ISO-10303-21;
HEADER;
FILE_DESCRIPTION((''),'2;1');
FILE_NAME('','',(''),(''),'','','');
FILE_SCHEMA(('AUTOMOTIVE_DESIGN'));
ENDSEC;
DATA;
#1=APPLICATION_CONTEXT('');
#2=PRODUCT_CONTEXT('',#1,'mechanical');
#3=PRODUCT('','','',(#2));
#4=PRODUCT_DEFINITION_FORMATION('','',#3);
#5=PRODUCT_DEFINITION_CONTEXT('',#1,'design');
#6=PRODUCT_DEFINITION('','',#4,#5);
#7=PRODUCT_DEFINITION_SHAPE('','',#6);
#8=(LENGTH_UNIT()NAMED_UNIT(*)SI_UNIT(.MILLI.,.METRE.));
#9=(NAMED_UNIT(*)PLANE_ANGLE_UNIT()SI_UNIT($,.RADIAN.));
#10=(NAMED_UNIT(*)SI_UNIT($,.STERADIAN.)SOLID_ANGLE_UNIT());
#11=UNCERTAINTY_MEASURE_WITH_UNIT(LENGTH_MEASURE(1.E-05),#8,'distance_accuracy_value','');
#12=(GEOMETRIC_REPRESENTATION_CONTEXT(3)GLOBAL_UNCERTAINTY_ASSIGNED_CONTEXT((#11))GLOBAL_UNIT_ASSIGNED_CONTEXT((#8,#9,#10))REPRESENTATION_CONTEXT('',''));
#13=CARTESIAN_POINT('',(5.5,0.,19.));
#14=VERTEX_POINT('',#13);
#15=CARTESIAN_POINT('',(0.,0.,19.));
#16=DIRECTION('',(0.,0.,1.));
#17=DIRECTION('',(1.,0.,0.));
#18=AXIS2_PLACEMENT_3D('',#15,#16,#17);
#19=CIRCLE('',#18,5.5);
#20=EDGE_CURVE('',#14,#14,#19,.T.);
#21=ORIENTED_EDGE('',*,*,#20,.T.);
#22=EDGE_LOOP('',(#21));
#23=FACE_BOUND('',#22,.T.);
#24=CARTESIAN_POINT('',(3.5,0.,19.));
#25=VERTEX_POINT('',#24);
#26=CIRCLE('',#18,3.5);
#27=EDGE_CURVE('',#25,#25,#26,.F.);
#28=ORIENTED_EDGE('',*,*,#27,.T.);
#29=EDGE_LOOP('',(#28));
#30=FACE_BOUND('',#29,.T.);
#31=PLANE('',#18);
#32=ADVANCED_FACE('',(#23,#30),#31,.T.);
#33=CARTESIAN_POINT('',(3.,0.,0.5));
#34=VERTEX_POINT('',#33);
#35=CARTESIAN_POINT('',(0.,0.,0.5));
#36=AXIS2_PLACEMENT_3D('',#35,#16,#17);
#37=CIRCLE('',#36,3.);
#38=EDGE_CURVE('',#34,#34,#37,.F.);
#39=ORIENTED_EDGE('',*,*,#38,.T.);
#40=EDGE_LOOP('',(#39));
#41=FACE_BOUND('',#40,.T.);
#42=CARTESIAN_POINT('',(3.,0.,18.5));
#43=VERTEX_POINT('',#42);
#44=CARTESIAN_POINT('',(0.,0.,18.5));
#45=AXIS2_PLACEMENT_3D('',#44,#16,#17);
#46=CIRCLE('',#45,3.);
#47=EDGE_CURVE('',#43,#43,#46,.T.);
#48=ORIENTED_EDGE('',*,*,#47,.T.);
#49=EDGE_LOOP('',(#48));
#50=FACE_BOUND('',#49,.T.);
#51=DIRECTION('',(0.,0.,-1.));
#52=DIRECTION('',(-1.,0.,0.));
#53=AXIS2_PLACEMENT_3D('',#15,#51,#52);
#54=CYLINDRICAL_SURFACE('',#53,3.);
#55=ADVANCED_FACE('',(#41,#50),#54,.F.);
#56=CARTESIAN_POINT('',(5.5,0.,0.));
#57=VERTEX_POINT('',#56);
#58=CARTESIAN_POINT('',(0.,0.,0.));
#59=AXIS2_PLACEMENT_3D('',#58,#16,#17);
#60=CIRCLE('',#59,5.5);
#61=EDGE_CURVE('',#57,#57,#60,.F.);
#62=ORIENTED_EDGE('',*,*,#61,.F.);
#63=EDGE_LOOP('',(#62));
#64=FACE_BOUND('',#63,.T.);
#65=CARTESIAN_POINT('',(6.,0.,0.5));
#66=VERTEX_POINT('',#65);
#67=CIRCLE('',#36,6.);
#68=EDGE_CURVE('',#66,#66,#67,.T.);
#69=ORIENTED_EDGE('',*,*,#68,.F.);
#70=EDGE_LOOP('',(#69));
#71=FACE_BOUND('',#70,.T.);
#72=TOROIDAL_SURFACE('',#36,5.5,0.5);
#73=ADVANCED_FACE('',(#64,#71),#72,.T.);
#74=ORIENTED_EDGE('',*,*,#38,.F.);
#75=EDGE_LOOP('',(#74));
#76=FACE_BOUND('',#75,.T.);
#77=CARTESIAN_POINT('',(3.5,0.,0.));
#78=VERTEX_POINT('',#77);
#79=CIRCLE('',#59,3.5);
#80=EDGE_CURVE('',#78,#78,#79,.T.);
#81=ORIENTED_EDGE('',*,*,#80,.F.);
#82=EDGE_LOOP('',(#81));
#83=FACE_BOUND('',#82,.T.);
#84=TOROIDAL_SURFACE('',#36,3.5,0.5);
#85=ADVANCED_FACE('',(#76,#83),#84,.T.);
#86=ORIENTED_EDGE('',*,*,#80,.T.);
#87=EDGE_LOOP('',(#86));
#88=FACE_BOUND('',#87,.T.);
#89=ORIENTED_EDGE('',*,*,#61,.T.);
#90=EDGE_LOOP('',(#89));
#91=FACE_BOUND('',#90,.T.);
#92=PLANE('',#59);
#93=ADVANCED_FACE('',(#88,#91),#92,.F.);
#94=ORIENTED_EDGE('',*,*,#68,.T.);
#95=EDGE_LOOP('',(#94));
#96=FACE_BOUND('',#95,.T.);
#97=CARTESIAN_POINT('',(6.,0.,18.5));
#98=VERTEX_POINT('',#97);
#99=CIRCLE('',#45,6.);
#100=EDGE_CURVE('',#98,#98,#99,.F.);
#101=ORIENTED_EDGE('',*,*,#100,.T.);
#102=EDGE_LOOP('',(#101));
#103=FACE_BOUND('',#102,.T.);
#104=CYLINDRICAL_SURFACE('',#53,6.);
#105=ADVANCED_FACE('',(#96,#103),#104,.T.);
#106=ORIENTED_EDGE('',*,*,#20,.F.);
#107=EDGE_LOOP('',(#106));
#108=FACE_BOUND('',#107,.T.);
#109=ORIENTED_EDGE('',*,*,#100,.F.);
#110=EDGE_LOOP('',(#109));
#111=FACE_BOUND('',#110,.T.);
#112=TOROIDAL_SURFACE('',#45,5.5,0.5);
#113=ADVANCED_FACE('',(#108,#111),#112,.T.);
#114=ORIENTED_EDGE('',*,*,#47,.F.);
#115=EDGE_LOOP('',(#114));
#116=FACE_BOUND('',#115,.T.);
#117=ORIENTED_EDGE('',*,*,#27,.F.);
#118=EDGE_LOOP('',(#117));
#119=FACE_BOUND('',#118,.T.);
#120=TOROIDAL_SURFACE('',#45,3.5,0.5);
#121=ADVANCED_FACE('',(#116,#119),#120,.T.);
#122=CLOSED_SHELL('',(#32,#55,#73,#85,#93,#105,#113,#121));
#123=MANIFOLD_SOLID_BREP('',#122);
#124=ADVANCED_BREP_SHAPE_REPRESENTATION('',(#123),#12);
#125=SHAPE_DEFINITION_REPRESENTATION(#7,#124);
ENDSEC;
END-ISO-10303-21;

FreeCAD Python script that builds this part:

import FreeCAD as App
import Part
import Sketcher
from FreeCAD import Vector
Q = App.Units.Quantity


def edges_at(feature, points):
    """Names of the edges that pass closest to the given points."""
    edges = feature.Shape.Edges
    near = lambda p: min(range(len(edges)), key=lambda i: edges[i].distToShape(Part.Vertex(*p))[0])
    return sorted({f"Edge{near(p) + 1}" for p in points})

doc = App.newDocument("Part")
body = doc.addObject("PartDesign::Body", "Body")

sketch1 = body.newObject("Sketcher::SketchObject", "Sketch")
sketch1.AttachmentSupport = (doc.getObject("XY_Plane"), [""])
sketch1.MapMode = "FlatFace"
sketch1.addGeometry([
    Part.Circle(Vector(0, 0, 0), Vector(0, 0, 1), 6),
    Part.Circle(Vector(0, 0, 0), Vector(0, 0, 1), 3),
], False)
sketch1.addConstraint([
    Sketcher.Constraint("Coincident", 0, 3, -1, 1),
    Sketcher.Constraint("Coincident", 1, 3, -1, 1),
    Sketcher.Constraint("Diameter", 0, Q("12 mm")),
    Sketcher.Constraint("Diameter", 1, Q("6 mm")),
])
pad1 = body.newObject("PartDesign::Pad", "Pad")
pad1.Profile = sketch1
pad1.Length = 19
doc.recompute()

fillet = body.newObject("PartDesign::Fillet", "Fillet")
fillet.Base = (pad1, edges_at(pad1, [
    (-6, 0, 0),
    (-6, 0, 19),
    (-3, 0, 0),
    (-3, 0, 19),
]))
fillet.Radius = 0.5

doc.recompute()
